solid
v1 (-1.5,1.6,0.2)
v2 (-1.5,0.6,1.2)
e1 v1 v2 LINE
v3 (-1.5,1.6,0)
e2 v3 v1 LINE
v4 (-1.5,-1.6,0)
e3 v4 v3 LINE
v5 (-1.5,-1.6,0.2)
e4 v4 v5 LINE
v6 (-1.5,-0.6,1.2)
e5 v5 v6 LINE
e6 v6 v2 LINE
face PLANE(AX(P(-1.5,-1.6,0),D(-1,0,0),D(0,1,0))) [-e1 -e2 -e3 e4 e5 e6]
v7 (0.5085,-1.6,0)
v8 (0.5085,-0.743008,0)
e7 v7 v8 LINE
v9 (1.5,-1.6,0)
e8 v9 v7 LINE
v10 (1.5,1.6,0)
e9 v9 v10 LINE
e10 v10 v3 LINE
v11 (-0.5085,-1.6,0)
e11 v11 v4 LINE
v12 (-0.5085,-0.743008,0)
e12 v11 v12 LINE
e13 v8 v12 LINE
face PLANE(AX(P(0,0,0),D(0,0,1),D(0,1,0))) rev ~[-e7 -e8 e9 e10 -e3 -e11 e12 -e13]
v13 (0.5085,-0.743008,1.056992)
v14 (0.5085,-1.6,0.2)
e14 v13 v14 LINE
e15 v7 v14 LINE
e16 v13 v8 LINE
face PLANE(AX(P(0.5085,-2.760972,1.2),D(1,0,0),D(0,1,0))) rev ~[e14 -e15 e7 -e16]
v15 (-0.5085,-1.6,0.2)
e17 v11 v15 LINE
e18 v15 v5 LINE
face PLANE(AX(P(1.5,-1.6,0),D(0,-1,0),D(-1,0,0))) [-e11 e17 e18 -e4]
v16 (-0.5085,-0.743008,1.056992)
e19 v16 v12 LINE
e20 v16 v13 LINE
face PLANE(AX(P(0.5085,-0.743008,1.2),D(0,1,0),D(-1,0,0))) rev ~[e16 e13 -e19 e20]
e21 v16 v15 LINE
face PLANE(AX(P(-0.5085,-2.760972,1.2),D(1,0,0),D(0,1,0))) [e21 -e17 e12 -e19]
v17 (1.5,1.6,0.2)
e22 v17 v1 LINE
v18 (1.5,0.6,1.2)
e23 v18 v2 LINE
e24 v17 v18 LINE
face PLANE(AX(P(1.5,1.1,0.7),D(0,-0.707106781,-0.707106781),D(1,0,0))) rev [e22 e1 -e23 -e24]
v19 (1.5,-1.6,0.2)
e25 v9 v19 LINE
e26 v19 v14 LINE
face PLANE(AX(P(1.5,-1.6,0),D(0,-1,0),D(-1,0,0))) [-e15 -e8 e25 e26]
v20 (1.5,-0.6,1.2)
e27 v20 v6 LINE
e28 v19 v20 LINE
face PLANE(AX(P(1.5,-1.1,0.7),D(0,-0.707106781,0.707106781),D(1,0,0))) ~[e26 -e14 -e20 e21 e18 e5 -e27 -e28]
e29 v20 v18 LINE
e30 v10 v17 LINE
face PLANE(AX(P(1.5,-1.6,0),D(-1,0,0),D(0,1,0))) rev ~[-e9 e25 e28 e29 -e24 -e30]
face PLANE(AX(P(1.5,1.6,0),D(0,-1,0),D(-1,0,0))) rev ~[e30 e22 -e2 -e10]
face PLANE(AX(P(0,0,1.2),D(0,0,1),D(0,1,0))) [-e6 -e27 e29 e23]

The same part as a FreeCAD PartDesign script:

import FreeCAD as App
import Part
import Sketcher
Q = App.Units.Quantity


def edges_at(feature, points):
    """Names of the edges that pass closest to the given points."""
    edges = feature.Shape.Edges
    near = lambda p: min(range(len(edges)), key=lambda i: edges[i].distToShape(Part.Vertex(*p))[0])
    return sorted({f"Edge{near(p) + 1}" for p in points})


def add_polygon(sketch, points):
    """Adds a closed chain of lines whose ends are joined by coincident constraints."""
    first, n = sketch.GeometryCount, len(points)
    for a, b in zip(points, points[1:] + points[:1]):
        sketch.addGeometry(Part.LineSegment(App.Vector(*a, 0), App.Vector(*b, 0)), False)
    for i in range(n):
        sketch.addConstraint(Sketcher.Constraint("Coincident", first + i, 2, first + (i + 1) % n, 1))

doc = App.newDocument("Part")
params = doc.addObject("Spreadsheet::Sheet", "Params")
for row, (alias, value) in enumerate([
    ("sketch1_height", "3 mm"),
    ("sketch1_width", "3.2 mm"),
    ("pad1_length", "1.2 mm"),
    ("chamfer_size", "1 mm"),
    ("pocket1_length", "5 mm"),
], start=1):
    params.set(f"A{row}", alias)
    params.set(f"B{row}", "=" + value)
    params.setAlias(f"B{row}", alias)

body = doc.addObject("PartDesign::Body", "Body")

# Sketch on XY plane
sketch1 = body.newObject("Sketcher::SketchObject", "Sketch")
sketch1.AttachmentSupport = (doc.getObject("XY_Plane"), [""])
sketch1.MapMode = "FlatFace"
add_polygon(sketch1, [(-1.6, 1.5), (-1.6, -1.5), (1.6, -1.5), (1.6, 1.5)])  # lines 0-3
sketch1.addConstraint(Sketcher.Constraint("Vertical", 0))
sketch1.addConstraint(Sketcher.Constraint("Horizontal", 1))
sketch1.addConstraint(Sketcher.Constraint("Vertical", 2))
sketch1.addConstraint(Sketcher.Constraint("Horizontal", 3))
sketch1.addConstraint(Sketcher.Constraint("Symmetric", 0, 2, 2, 2, -1, 1))
sketch1.addConstraint(Sketcher.Constraint("DistanceY", 0, 2, 0, 1, Q("3 mm")))
sketch1.addConstraint(Sketcher.Constraint("DistanceX", 1, 1, 1, 2, Q("3.2 mm")))
sketch1.setExpression("Constraints[9]", "Params.sketch1_height")
sketch1.setExpression("Constraints[10]", "Params.sketch1_width")
pad1 = body.newObject("PartDesign::Pad", "Pad")
pad1.Profile = sketch1
pad1.setExpression("Length", "Params.pad1_length")
doc.recompute()

chamfer = body.newObject("PartDesign::Chamfer", "Chamfer")
chamfer.Base = (pad1, edges_at(pad1, [(-1.6, 0, 1.2), (1.6, 0, 1.2)]))
chamfer.setExpression("Size", "Params.chamfer_size")

# Sketch on XY plane
sketch2 = body.newObject("Sketcher::SketchObject", "Sketch001")
sketch2.AttachmentSupport = (doc.getObject("XY_Plane"), [""])
sketch2.MapMode = "FlatFace"
sketch2.AttachmentOffset = App.Placement(App.Vector(0, 0, 1.2), App.Rotation())
add_polygon(sketch2, [(-2.760972, 0.5085), (-2.760972, -0.5085), (-0.743008, -0.5085), (-0.743008, 0.5085)])  # lines 0-3
sketch2.addConstraint(Sketcher.Constraint("Vertical", 0))
sketch2.addConstraint(Sketcher.Constraint("Horizontal", 1))
sketch2.addConstraint(Sketcher.Constraint("Vertical", 2))
sketch2.addConstraint(Sketcher.Constraint("Horizontal", 3))
sketch2.addConstraint(Sketcher.Constraint("DistanceY", 0, 2, 0, 1, Q("1.017 mm")))
sketch2.addConstraint(Sketcher.Constraint("DistanceY", 0, 2, -1, 1, Q("0.5085 mm")))
sketch2.addConstraint(Sketcher.Constraint("DistanceX", 1, 1, 1, 2, Q("2.017963 mm")))
sketch2.addConstraint(Sketcher.Constraint("DistanceX", 0, 2, -1, 1, Q("2.760972 mm")))
pocket1 = body.newObject("PartDesign::Pocket", "Pocket")
pocket1.Profile = sketch2
pocket1.setExpression("Length", "Params.pocket1_length")
body2 = doc.addObject("PartDesign::Body", "Body001")
doc.recompute()

body.Placement = App.Placement(App.Vector(0, 0, 0), App.Rotation(App.Vector(0, 0, 1), 90))
boolean = body2.newObject("PartDesign::Boolean", "Boolean")
boolean.Type = "Fuse"
boolean.addObjects([body])

doc.recompute()
